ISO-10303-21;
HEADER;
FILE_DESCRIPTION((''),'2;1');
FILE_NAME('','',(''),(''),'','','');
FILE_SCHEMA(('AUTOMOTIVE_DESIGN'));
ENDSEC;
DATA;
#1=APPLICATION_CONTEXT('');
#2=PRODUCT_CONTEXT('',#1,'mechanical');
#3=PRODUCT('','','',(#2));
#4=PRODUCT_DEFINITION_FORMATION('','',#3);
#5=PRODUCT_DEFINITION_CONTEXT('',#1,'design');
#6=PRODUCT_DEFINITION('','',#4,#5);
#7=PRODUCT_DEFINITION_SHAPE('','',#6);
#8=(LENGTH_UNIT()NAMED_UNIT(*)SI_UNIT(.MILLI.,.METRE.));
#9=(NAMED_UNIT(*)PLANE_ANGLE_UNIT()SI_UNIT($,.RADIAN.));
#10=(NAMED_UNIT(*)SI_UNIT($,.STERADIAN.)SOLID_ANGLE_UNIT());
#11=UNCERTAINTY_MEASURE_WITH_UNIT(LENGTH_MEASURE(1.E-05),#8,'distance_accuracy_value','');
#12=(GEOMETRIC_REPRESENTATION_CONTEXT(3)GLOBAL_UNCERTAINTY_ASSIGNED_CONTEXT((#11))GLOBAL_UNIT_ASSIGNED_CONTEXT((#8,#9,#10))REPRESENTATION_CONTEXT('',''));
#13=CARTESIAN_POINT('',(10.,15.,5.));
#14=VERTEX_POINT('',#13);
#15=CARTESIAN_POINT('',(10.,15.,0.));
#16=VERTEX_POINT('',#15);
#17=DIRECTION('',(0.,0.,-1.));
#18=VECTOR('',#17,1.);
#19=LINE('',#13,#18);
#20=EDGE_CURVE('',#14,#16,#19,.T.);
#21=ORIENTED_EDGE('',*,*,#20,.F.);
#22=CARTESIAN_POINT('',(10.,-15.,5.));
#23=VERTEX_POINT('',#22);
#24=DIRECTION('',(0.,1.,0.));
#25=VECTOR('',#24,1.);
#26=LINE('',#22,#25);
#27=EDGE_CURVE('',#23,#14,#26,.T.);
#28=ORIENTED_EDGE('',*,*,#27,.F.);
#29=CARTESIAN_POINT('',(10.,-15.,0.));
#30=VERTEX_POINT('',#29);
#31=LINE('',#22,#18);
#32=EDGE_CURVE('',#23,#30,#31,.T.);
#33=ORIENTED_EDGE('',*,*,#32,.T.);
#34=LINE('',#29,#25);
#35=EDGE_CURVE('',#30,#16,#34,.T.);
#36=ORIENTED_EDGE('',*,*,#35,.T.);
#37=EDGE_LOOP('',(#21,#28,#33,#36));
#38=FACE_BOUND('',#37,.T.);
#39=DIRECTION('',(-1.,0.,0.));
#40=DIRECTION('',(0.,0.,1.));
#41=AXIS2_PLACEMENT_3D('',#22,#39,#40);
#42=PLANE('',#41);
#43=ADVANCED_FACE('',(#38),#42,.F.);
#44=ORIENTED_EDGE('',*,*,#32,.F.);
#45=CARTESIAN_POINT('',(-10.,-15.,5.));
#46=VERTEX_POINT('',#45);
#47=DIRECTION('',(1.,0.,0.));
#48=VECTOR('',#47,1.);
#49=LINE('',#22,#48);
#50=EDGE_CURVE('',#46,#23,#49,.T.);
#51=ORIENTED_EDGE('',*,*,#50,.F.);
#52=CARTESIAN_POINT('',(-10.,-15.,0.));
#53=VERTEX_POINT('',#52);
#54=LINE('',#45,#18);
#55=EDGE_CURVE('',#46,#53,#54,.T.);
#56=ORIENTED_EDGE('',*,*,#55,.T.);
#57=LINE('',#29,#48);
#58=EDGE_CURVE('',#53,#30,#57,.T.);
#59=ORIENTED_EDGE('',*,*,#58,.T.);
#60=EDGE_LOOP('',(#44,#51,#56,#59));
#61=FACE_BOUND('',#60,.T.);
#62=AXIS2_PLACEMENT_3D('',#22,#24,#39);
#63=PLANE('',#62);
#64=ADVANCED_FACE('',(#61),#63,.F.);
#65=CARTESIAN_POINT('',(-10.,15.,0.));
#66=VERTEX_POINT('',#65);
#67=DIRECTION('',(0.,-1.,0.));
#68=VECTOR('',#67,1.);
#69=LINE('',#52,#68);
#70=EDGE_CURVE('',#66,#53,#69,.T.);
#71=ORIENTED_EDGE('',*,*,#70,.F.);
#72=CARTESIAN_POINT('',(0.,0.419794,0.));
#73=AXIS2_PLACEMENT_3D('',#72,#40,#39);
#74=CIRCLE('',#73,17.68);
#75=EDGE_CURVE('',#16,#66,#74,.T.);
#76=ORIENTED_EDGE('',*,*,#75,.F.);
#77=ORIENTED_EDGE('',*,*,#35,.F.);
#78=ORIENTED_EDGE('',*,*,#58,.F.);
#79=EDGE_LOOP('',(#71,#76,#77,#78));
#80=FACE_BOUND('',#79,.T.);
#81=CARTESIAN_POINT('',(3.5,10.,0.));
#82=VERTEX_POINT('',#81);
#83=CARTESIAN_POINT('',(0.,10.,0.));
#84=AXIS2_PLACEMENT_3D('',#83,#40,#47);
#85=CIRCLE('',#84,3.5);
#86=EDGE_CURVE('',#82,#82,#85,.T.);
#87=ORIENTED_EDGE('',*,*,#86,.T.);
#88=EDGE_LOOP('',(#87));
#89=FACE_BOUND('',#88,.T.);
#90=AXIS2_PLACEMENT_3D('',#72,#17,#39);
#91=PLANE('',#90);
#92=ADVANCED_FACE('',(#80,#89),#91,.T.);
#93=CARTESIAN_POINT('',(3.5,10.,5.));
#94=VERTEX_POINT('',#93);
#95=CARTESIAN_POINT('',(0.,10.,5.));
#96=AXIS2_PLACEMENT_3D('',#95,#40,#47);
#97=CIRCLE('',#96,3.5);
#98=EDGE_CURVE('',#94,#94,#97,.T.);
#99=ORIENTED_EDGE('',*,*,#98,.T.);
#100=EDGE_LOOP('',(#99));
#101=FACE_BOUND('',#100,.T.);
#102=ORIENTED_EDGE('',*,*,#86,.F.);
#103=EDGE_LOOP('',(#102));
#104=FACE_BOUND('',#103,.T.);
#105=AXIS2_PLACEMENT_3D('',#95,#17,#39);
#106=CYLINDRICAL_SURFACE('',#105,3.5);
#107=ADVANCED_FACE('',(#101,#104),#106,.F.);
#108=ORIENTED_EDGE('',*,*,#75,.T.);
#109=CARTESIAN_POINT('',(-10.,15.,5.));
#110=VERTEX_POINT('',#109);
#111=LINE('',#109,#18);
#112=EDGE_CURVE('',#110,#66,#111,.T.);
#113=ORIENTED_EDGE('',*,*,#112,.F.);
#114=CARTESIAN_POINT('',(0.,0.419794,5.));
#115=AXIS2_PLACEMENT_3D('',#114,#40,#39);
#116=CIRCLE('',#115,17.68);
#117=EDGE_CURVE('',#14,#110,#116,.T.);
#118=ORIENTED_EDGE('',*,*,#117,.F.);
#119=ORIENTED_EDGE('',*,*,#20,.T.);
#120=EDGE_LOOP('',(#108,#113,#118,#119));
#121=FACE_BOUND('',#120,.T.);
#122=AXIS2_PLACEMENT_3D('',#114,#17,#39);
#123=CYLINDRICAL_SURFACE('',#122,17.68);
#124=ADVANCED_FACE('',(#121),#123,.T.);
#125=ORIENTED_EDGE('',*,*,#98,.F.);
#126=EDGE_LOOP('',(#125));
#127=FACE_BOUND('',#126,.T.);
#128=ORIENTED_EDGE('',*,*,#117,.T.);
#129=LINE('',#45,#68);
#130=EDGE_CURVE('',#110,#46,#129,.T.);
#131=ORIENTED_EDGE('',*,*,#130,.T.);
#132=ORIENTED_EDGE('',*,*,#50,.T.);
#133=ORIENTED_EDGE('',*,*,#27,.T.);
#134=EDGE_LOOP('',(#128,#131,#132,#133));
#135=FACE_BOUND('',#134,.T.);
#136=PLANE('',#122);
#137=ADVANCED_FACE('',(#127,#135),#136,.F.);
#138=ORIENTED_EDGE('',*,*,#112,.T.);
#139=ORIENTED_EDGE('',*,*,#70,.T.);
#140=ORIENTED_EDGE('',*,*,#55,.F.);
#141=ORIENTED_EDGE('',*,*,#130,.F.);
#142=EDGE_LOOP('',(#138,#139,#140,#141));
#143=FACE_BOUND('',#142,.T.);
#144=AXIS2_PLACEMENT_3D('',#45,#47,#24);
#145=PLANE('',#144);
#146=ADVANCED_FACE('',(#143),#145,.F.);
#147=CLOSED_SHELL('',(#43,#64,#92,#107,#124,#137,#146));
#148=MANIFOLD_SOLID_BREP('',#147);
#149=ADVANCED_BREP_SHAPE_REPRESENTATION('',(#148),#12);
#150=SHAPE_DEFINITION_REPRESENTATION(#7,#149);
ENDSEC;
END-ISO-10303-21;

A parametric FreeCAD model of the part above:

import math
import FreeCAD as App
import Part
import Sketcher

V = App.Vector

doc = App.newDocument("Part")
body = doc.addObject("PartDesign::Body", "Body")

# Sketch on XY plane
sketch1 = doc.addObject("Sketcher::SketchObject", "Sketch")
body.addObject(sketch1)
sketch1.AttachmentSupport = (doc.XY_Plane, [""])
sketch1.MapMode = "FlatFace"
sketch1.addGeometry(Part.LineSegment(V(-10, -15, 0), V(10, -15, 0)), False)
sketch1.addGeometry(Part.LineSegment(V(10, -15, 0), V(10, 15, 0)), False)
sketch1.addGeometry(Part.ArcOfCircle(Part.Circle(V(0, 0.4, 0), V(0, 0, 1), 17.7), math.radians(56), math.radians(124)), False)
sketch1.addGeometry(Part.LineSegment(V(-10, 15, 0), V(-10, -15, 0)), False)
sketch1.addGeometry(Part.Circle(V(0, 10, 0), V(0, 0, 1), 3.5), False)
sketch1.addConstraint(Sketcher.Constraint("Coincident", 0, 2, 1, 1))
sketch1.addConstraint(Sketcher.Constraint("Coincident", 1, 2, 2, 1))
sketch1.addConstraint(Sketcher.Constraint("Coincident", 2, 2, 3, 1))
sketch1.addConstraint(Sketcher.Constraint("Coincident", 3, 2, 0, 1))
sketch1.addConstraint(Sketcher.Constraint("Horizontal", 0))
sketch1.addConstraint(Sketcher.Constraint("Vertical", 1))
sketch1.addConstraint(Sketcher.Constraint("Vertical", 3))
sketch1.addConstraint(Sketcher.Constraint("Symmetric", 0, 2, 2, 2, -1, 1))
sketch1.addConstraint(Sketcher.Constraint("PointOnObject", 2, 3, -2))
sketch1.addConstraint(Sketcher.Constraint("PointOnObject", 4, 3, -2))
sketch1.addConstraint(Sketcher.Constraint("Diameter", 4, 7.0))
sketch1.addConstraint(Sketcher.Constraint("DistanceX", 0, 1, 0, 2, 20.0))
sketch1.addConstraint(Sketcher.Constraint("DistanceY", 1, 1, 1, 2, 30.0))
sketch1.addConstraint(Sketcher.Constraint("Radius", 2, 17.68))
sketch1.addConstraint(Sketcher.Constraint("DistanceY", -1, 1, 4, 3, 10.0))
pad1 = doc.addObject("PartDesign::Pad", "Pad")
body.addObject(pad1)
pad1.Profile = sketch1
pad1.Length = 5

doc.recompute()
